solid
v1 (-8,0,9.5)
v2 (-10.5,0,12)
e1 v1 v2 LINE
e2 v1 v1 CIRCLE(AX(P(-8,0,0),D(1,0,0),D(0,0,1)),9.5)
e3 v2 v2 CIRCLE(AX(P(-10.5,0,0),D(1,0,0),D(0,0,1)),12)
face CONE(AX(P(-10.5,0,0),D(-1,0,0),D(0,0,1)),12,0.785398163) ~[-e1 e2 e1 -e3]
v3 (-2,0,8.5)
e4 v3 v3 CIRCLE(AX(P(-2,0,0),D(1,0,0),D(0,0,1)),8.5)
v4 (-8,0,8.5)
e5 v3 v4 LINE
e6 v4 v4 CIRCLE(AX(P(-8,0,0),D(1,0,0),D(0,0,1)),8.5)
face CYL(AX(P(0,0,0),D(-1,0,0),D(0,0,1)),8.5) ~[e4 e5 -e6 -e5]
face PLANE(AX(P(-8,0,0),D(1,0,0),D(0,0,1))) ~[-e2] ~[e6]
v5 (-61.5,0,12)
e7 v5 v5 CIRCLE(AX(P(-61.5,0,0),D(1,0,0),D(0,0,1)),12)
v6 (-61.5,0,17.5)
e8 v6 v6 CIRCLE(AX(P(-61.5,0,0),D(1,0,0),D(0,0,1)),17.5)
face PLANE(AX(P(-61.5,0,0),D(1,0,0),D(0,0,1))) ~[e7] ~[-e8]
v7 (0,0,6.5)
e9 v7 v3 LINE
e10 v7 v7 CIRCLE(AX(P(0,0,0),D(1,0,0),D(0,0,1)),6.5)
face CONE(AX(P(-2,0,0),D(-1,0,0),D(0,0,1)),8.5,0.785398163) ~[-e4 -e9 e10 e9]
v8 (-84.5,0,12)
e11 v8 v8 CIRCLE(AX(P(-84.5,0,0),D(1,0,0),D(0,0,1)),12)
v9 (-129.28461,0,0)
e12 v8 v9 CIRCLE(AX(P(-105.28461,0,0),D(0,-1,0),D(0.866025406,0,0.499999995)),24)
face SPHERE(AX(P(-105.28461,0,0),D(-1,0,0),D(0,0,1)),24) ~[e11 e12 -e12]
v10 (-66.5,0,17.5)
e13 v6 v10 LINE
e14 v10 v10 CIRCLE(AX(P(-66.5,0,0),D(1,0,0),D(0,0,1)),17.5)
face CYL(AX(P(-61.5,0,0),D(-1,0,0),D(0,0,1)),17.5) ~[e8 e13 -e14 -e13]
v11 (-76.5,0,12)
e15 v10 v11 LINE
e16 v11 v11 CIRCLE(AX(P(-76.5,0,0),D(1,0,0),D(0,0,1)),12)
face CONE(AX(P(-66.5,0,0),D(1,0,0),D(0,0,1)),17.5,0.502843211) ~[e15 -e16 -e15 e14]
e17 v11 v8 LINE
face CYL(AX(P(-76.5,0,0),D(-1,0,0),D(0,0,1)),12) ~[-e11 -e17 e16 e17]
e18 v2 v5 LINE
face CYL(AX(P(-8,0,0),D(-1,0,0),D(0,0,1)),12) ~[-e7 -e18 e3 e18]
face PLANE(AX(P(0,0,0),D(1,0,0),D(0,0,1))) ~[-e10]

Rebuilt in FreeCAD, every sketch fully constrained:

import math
import FreeCAD as App
import Part
import Sketcher
from FreeCAD import Vector


def edges_at(feature, points):
    """Names of the edges that pass closest to the given points."""
    edges = feature.Shape.Edges
    near = lambda p: min(range(len(edges)), key=lambda i: edges[i].distToShape(Part.Vertex(*p))[0])
    return sorted({f"Edge{near(p) + 1}" for p in points})

doc = App.newDocument("Part")
body = doc.addObject("PartDesign::Body", "Body")

sketch1 = body.newObject("Sketcher::SketchObject", "Sketch")
sketch1.AttachmentSupport = (doc.getObject("XZ_Plane"), [""])
sketch1.MapMode = "FlatFace"
sketch1.addGeometry([
    Part.LineSegment(Vector(-129.3, 0, 0), Vector(0, 0, 0)),
    Part.LineSegment(Vector(0, 0, 0), Vector(0, 8.5, 0)),
    Part.LineSegment(Vector(0, 8.5, 0), Vector(-8, 8.5, 0)),
    Part.LineSegment(Vector(-8, 8.5, 0), Vector(-8, 12, 0)),
    Part.LineSegment(Vector(-8, 12, 0), Vector(-61.5, 12, 0)),
    Part.LineSegment(Vector(-61.5, 12, 0), Vector(-61.5, 17.5, 0)),
    Part.LineSegment(Vector(-61.5, 17.5, 0), Vector(-66.5, 17.5, 0)),
    Part.LineSegment(Vector(-66.5, 17.5, 0), Vector(-76.5, 12, 0)),
    Part.LineSegment(Vector(-76.5, 12, 0), Vector(-84.5, 12, 0)),
    Part.ArcOfCircle(Part.Circle(Vector(-105.3, 0, 0), Vector(0, 0, 1), 24), math.radians(30), math.radians(180)),
], False)
sketch1.addConstraint([
    Sketcher.Constraint("Coincident", 0, 2, 1, 1),
    Sketcher.Constraint("Coincident", 1, 2, 2, 1),
    Sketcher.Constraint("Coincident", 2, 2, 3, 1),
    Sketcher.Constraint("Coincident", 3, 2, 4, 1),
    Sketcher.Constraint("Coincident", 4, 2, 5, 1),
    Sketcher.Constraint("Coincident", 5, 2, 6, 1),
    Sketcher.Constraint("Coincident", 6, 2, 7, 1),
    Sketcher.Constraint("Coincident", 7, 2, 8, 1),
    Sketcher.Constraint("Coincident", 8, 2, 9, 1),
    Sketcher.Constraint("Coincident", 9, 2, 0, 1),
    Sketcher.Constraint("Horizontal", 0),
    Sketcher.Constraint("Vertical", 1),
    Sketcher.Constraint("Horizontal", 2),
    Sketcher.Constraint("Vertical", 3),
    Sketcher.Constraint("Horizontal", 4),
    Sketcher.Constraint("Vertical", 5),
    Sketcher.Constraint("Horizontal", 6),
    Sketcher.Constraint("Horizontal", 8),
    Sketcher.Constraint("Coincident", 0, 2, -1, 1),
    Sketcher.Constraint("PointOnObject", 9, 3, -1),
    Sketcher.Constraint("Horizontal", 4, 2, 7, 2),
    Sketcher.Constraint("Equal", 2, 8),
    Sketcher.Constraint("Radius", 9, 24.0),
    Sketcher.Constraint("DistanceX", 2, 2, 2, 1, 8.0),
    Sketcher.Constraint("DistanceX", 6, 2, 6, 1, 5.0),
    Sketcher.Constraint("DistanceX", 4, 2, 4, 1, 53.5),
    Sketcher.Constraint("DistanceY", 1, 1, 1, 2, 8.5),
    Sketcher.Constraint("DistanceY", 3, 1, 3, 2, 3.5),
    Sketcher.Constraint("DistanceY", 5, 1, 5, 2, 5.5),
    Sketcher.Constraint("DistanceX", 7, 2, 6, 2, 10.0),
])
revolution = body.newObject("PartDesign::Revolution", "Revolution")
revolution.Profile = sketch1
revolution.ReferenceAxis = (sketch1, ["H_Axis"])
revolution.Angle = 360
doc.recompute()

chamfer = body.newObject("PartDesign::Chamfer", "Chamfer")
chamfer.Base = (revolution, edges_at(revolution, [(0, 0, -8.5)]))
chamfer.ChamferType = "Two distances"
chamfer.Size = 2
chamfer.Size2 = 2
doc.recompute()

chamfer2 = body.newObject("PartDesign::Chamfer", "Chamfer001")
chamfer2.Base = (chamfer, edges_at(chamfer, [(-8, 0, -12)]))
chamfer2.ChamferType = "Two distances"
chamfer2.Size = 2.5
chamfer2.Size2 = 2.5

doc.recompute()
